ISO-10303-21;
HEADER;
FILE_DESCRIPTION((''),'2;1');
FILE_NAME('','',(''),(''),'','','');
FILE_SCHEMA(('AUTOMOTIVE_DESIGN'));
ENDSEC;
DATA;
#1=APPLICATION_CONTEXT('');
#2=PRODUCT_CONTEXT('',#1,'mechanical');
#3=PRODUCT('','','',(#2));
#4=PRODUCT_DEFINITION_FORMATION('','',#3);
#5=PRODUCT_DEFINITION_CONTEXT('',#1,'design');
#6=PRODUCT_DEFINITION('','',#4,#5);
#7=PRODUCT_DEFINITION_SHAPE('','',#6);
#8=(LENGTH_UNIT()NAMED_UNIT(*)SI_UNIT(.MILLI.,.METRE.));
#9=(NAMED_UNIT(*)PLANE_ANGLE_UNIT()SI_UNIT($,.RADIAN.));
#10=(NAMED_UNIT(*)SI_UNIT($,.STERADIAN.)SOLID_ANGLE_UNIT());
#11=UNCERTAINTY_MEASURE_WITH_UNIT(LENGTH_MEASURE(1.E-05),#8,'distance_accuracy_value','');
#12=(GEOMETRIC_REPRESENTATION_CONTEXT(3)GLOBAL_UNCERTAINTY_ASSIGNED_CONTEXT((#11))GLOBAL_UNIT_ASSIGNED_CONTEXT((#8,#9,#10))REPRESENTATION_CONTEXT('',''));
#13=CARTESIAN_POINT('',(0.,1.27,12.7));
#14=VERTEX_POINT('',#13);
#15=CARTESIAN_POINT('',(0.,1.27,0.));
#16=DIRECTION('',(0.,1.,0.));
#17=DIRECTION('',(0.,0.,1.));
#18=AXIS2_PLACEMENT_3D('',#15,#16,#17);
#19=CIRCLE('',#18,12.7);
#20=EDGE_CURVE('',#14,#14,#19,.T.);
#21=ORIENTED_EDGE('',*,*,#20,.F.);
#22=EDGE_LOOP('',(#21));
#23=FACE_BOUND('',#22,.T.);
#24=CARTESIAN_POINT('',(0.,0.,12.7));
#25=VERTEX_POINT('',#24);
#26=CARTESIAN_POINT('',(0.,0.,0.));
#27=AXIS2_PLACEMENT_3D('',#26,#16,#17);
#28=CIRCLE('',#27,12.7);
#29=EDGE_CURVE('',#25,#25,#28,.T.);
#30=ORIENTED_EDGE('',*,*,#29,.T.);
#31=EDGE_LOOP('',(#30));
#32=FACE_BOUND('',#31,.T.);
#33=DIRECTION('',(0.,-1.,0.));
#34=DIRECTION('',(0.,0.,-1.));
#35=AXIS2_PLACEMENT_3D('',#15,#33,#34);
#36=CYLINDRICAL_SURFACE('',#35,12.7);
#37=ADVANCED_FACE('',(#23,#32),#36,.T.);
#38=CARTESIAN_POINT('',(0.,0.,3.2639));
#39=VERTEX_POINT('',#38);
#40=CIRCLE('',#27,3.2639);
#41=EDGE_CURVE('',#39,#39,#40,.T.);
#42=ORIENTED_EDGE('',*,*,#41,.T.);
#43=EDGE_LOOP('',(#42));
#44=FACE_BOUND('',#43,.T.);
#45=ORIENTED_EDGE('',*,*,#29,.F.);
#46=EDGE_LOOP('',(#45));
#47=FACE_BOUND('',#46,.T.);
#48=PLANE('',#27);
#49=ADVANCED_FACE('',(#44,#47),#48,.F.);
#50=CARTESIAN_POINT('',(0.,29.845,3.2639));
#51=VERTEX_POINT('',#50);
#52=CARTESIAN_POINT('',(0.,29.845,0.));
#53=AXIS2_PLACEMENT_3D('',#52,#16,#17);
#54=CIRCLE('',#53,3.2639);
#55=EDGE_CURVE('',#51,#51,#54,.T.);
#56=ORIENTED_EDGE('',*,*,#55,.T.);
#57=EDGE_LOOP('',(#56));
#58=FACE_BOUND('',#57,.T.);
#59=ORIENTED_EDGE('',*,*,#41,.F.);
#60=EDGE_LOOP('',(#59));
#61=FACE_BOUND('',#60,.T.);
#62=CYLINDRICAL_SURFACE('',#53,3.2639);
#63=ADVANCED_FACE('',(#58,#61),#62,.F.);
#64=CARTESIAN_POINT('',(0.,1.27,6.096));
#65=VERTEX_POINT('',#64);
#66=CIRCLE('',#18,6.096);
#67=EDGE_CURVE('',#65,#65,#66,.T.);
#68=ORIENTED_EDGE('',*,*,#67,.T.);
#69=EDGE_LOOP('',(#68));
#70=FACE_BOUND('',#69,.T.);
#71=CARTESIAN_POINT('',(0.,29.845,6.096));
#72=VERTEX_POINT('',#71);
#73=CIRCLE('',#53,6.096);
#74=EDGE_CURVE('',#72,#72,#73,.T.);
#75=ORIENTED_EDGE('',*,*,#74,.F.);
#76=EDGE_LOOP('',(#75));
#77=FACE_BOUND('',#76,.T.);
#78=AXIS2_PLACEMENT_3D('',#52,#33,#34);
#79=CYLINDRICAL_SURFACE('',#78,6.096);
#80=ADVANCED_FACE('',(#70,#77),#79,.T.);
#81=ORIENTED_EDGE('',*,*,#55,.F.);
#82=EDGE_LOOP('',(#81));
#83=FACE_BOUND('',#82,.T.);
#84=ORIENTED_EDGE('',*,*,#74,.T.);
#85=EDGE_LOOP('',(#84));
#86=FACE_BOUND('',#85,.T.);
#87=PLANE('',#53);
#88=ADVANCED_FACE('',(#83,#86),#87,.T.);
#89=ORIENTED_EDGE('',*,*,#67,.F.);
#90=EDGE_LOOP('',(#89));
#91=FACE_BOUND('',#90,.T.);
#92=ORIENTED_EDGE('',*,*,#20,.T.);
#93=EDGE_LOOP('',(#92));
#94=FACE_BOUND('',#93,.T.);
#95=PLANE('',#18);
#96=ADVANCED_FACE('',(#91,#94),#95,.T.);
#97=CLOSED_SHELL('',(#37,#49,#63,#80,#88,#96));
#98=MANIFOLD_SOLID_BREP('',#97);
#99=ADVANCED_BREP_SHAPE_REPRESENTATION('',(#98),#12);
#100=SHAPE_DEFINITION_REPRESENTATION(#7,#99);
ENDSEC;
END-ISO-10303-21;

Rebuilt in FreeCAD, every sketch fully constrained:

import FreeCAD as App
import Part
import Sketcher
Q = App.Units.Quantity

doc = App.newDocument("Part")
params = doc.addObject("Spreadsheet::Sheet", "Params")
for row, (alias, value) in enumerate([
    ("sketch1_diameter", "1 in"),
    ("pad1_length", "0.05 in"),
    ("sketch2_diameter", "0.48 in"),
    ("pad2_length", "1.125 in"),
    ("sketch3_diameter", "0.257 in"),
    ("hole_diameter", "0.257 in"),
], start=1):
    params.set(f"A{row}", alias)
    params.set(f"B{row}", "=" + value)
    params.setAlias(f"B{row}", alias)

body = doc.addObject("PartDesign::Body", "Body")

# Sketch on XZ plane
sketch1 = body.newObject("Sketcher::SketchObject", "Sketch")
sketch1.AttachmentSupport = (doc.getObject("XZ_Plane"), [""])
sketch1.MapMode = "FlatFace"
sketch1.addGeometry(Part.Circle(App.Vector(0, 0, 0), App.Vector(0, 0, 1), 13), False)
sketch1.addConstraint([
    Sketcher.Constraint("Coincident", 0, 3, -1, 1),
    Sketcher.Constraint("Diameter", 0, Q("1 in")),
])
sketch1.setExpression("Constraints[1]", "Params.sketch1_diameter")
pad1 = body.newObject("PartDesign::Pad", "Pad")
pad1.Profile = sketch1
pad1.setExpression("Length", "Params.pad1_length")
pad1.Reversed = True

# Sketch on XZ plane
sketch2 = body.newObject("Sketcher::SketchObject", "Sketch001")
sketch2.AttachmentSupport = (doc.getObject("XZ_Plane"), [""])
sketch2.MapMode = "FlatFace"
sketch2.AttachmentOffset = App.Placement(App.Vector(0, 0, -0.05 * 25.4), App.Rotation())
sketch2.addGeometry(Part.Circle(App.Vector(0, 0, 0), App.Vector(0, 0, 1), 6), False)
sketch2.addConstraint([
    Sketcher.Constraint("Coincident", 0, 3, -1, 1),
    Sketcher.Constraint("Diameter", 0, Q("0.48 in")),
])
sketch2.setExpression("Constraints[1]", "Params.sketch2_diameter")
pad2 = body.newObject("PartDesign::Pad", "Pad001")
pad2.Profile = sketch2
pad2.setExpression("Length", "Params.pad2_length")
pad2.Reversed = True

# Sketch on XZ plane
sketch3 = body.newObject("Sketcher::SketchObject", "Sketch002")
sketch3.AttachmentSupport = (doc.getObject("XZ_Plane"), [""])
sketch3.MapMode = "FlatFace"
sketch3.AttachmentOffset = App.Placement(App.Vector(0, 0, -1.175 * 25.4), App.Rotation())
sketch3.addGeometry(Part.Circle(App.Vector(0, 0, 0), App.Vector(0, 0, 1), 3.3), False)
sketch3.addConstraint([
    Sketcher.Constraint("Coincident", 0, 3, -1, 1),
    Sketcher.Constraint("Diameter", 0, Q("0.257 in")),
])
sketch3.setExpression("Constraints[1]", "Params.sketch3_diameter")
doc.recompute()
hole = body.newObject("PartDesign::Hole", "Hole")
hole.Profile = sketch3
hole.ThreadType = "None"
hole.setExpression("Diameter", "Params.hole_diameter")
hole.DepthType = "ThroughAll"
hole.Reversed = True

doc.recompute()
